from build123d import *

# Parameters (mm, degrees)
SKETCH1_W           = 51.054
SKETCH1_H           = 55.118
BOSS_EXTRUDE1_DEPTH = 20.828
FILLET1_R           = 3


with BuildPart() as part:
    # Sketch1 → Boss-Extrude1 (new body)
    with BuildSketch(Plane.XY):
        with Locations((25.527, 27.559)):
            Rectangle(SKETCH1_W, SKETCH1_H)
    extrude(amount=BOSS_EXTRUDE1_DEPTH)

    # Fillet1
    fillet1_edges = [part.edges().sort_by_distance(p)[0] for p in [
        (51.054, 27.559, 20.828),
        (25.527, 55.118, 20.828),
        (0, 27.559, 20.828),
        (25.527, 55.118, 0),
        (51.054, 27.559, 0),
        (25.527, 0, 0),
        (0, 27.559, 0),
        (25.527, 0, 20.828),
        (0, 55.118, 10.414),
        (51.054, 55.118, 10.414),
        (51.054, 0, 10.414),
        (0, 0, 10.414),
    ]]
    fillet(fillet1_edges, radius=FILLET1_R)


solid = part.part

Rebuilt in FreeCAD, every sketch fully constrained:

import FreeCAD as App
import Part
import Sketcher

V = App.Vector
Q = App.Units.Quantity


def add_polygon(sketch, points):
    """Adds a closed chain of lines whose ends are joined by coincident constraints."""
    first, n = sketch.GeometryCount, len(points)
    for a, b in zip(points, points[1:] + points[:1]):
        sketch.addGeometry(Part.LineSegment(App.Vector(*a, 0), App.Vector(*b, 0)), False)
    for i in range(n):
        sketch.addConstraint(Sketcher.Constraint("Coincident", first + i, 2, first + (i + 1) % n, 1))

doc = App.newDocument("Part")
params = doc.addObject("Spreadsheet::Sheet", "Params")
for row, (alias, value) in enumerate([
    ("sketch1_width", "2.01 in"),
    ("sketch1_height", "2.17 in"),
    ("pad1_length", "0.82 in"),
    ("fillet_radius", "3 mm"),
], start=1):
    params.set(f"A{row}", alias)
    params.set(f"B{row}", "=" + value)
    params.setAlias(f"B{row}", alias)

body = doc.addObject("PartDesign::Body", "Body")

# Sketch on XY plane
sketch1 = body.newObject("Sketcher::SketchObject", "Sketch")
sketch1.AttachmentSupport = (doc.getObject("XY_Plane"), [""])
sketch1.MapMode = "FlatFace"
add_polygon(sketch1, [(0, 55), (0, 0), (51, 0), (51, 55)])  # lines 0-3
sketch1.addConstraint([
    Sketcher.Constraint("Vertical", 0),
    Sketcher.Constraint("Horizontal", 1),
    Sketcher.Constraint("Vertical", 2),
    Sketcher.Constraint("Horizontal", 3),
    Sketcher.Constraint("Coincident", 0, 2, -1, 1),
    Sketcher.Constraint("DistanceX", 1, 1, 1, 2, Q("2.01 in")),
    Sketcher.Constraint("DistanceY", 0, 2, 0, 1, Q("2.17 in")),
])
sketch1.setExpression("Constraints[9]", "Params.sketch1_width")
sketch1.setExpression("Constraints[10]", "Params.sketch1_height")
pad1 = body.newObject("PartDesign::Pad", "Pad")
pad1.Profile = sketch1
pad1.setExpression("Length", "Params.pad1_length")
doc.recompute()

fillet = body.newObject("PartDesign::Fillet", "Fillet")
fillet.Base = (pad1, ["Edge1"])
fillet.UseAllEdges = True
fillet.setExpression("Radius", "Params.fillet_radius")

doc.recompute()
